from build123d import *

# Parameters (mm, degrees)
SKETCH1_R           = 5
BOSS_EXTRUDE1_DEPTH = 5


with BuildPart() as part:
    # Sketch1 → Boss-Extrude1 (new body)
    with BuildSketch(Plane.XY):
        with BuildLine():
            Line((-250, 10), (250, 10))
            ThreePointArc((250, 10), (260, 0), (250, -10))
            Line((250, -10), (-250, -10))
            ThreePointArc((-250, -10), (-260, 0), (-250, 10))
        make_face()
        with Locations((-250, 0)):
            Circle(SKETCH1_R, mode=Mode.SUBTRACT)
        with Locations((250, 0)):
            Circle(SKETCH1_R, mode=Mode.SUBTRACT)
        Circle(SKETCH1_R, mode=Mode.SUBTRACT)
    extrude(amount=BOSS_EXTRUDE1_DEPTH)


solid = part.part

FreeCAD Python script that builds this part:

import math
import FreeCAD as App
import Part
import Sketcher
from FreeCAD import Vector
Q = App.Units.Quantity

doc = App.newDocument("Part")
body = doc.addObject("PartDesign::Body", "Body")

# Sketch on XY plane
sketch1 = body.newObject("Sketcher::SketchObject", "Sketch")
sketch1.AttachmentSupport = (doc.getObject("XY_Plane"), [""])
sketch1.MapMode = "FlatFace"
sketch1.addGeometry([
    Part.LineSegment(Vector(250, 10, 0), Vector(-250, 10, 0)),  # 0
    Part.ArcOfCircle(Part.Circle(Vector(-250, 0, 0), Vector(0, 0, 1), 10), math.radians(90), math.radians(270)),  # 1
    Part.LineSegment(Vector(-250, -10, 0), Vector(250, -10, 0)),  # 2
    Part.ArcOfCircle(Part.Circle(Vector(250, 0, 0), Vector(0, 0, 1), 10), math.radians(-90), math.radians(90)),  # 3
    Part.Circle(Vector(250, 0, 0), Vector(0, 0, 1), 5),  # 4
    Part.Circle(Vector(0, 0, 0), Vector(0, 0, 1), 5),  # 5
    Part.Circle(Vector(-250, 0, 0), Vector(0, 0, 1), 5),  # 6
], False)
sketch1.addConstraint([
    Sketcher.Constraint("Tangent", 0, 2, 1, 1),
    Sketcher.Constraint("Tangent", 1, 2, 2, 1),
    Sketcher.Constraint("Tangent", 2, 2, 3, 1),
    Sketcher.Constraint("Tangent", 3, 2, 0, 1),
    Sketcher.Constraint("Horizontal", 0),
    Sketcher.Constraint("Horizontal", 2),
    Sketcher.Constraint("Coincident", 5, 3, -1, 1),
    Sketcher.Constraint("Coincident", 4, 3, 3, 3),
    Sketcher.Constraint("Coincident", 6, 3, 1, 3),
    Sketcher.Constraint("Equal", 4, 5),
    Sketcher.Constraint("Equal", 5, 6),
    Sketcher.Constraint("Symmetric", 1, 3, 3, 3, -1, 1),
    Sketcher.Constraint("Diameter", 4, Q("10 mm")),
    Sketcher.Constraint("Radius", 1, Q("10 mm")),
    Sketcher.Constraint("DistanceX", 0, 2, 0, 1, Q("500 mm")),
])
pad1 = body.newObject("PartDesign::Pad", "Pad")
pad1.Profile = sketch1
pad1.Length = 5

doc.recompute()
